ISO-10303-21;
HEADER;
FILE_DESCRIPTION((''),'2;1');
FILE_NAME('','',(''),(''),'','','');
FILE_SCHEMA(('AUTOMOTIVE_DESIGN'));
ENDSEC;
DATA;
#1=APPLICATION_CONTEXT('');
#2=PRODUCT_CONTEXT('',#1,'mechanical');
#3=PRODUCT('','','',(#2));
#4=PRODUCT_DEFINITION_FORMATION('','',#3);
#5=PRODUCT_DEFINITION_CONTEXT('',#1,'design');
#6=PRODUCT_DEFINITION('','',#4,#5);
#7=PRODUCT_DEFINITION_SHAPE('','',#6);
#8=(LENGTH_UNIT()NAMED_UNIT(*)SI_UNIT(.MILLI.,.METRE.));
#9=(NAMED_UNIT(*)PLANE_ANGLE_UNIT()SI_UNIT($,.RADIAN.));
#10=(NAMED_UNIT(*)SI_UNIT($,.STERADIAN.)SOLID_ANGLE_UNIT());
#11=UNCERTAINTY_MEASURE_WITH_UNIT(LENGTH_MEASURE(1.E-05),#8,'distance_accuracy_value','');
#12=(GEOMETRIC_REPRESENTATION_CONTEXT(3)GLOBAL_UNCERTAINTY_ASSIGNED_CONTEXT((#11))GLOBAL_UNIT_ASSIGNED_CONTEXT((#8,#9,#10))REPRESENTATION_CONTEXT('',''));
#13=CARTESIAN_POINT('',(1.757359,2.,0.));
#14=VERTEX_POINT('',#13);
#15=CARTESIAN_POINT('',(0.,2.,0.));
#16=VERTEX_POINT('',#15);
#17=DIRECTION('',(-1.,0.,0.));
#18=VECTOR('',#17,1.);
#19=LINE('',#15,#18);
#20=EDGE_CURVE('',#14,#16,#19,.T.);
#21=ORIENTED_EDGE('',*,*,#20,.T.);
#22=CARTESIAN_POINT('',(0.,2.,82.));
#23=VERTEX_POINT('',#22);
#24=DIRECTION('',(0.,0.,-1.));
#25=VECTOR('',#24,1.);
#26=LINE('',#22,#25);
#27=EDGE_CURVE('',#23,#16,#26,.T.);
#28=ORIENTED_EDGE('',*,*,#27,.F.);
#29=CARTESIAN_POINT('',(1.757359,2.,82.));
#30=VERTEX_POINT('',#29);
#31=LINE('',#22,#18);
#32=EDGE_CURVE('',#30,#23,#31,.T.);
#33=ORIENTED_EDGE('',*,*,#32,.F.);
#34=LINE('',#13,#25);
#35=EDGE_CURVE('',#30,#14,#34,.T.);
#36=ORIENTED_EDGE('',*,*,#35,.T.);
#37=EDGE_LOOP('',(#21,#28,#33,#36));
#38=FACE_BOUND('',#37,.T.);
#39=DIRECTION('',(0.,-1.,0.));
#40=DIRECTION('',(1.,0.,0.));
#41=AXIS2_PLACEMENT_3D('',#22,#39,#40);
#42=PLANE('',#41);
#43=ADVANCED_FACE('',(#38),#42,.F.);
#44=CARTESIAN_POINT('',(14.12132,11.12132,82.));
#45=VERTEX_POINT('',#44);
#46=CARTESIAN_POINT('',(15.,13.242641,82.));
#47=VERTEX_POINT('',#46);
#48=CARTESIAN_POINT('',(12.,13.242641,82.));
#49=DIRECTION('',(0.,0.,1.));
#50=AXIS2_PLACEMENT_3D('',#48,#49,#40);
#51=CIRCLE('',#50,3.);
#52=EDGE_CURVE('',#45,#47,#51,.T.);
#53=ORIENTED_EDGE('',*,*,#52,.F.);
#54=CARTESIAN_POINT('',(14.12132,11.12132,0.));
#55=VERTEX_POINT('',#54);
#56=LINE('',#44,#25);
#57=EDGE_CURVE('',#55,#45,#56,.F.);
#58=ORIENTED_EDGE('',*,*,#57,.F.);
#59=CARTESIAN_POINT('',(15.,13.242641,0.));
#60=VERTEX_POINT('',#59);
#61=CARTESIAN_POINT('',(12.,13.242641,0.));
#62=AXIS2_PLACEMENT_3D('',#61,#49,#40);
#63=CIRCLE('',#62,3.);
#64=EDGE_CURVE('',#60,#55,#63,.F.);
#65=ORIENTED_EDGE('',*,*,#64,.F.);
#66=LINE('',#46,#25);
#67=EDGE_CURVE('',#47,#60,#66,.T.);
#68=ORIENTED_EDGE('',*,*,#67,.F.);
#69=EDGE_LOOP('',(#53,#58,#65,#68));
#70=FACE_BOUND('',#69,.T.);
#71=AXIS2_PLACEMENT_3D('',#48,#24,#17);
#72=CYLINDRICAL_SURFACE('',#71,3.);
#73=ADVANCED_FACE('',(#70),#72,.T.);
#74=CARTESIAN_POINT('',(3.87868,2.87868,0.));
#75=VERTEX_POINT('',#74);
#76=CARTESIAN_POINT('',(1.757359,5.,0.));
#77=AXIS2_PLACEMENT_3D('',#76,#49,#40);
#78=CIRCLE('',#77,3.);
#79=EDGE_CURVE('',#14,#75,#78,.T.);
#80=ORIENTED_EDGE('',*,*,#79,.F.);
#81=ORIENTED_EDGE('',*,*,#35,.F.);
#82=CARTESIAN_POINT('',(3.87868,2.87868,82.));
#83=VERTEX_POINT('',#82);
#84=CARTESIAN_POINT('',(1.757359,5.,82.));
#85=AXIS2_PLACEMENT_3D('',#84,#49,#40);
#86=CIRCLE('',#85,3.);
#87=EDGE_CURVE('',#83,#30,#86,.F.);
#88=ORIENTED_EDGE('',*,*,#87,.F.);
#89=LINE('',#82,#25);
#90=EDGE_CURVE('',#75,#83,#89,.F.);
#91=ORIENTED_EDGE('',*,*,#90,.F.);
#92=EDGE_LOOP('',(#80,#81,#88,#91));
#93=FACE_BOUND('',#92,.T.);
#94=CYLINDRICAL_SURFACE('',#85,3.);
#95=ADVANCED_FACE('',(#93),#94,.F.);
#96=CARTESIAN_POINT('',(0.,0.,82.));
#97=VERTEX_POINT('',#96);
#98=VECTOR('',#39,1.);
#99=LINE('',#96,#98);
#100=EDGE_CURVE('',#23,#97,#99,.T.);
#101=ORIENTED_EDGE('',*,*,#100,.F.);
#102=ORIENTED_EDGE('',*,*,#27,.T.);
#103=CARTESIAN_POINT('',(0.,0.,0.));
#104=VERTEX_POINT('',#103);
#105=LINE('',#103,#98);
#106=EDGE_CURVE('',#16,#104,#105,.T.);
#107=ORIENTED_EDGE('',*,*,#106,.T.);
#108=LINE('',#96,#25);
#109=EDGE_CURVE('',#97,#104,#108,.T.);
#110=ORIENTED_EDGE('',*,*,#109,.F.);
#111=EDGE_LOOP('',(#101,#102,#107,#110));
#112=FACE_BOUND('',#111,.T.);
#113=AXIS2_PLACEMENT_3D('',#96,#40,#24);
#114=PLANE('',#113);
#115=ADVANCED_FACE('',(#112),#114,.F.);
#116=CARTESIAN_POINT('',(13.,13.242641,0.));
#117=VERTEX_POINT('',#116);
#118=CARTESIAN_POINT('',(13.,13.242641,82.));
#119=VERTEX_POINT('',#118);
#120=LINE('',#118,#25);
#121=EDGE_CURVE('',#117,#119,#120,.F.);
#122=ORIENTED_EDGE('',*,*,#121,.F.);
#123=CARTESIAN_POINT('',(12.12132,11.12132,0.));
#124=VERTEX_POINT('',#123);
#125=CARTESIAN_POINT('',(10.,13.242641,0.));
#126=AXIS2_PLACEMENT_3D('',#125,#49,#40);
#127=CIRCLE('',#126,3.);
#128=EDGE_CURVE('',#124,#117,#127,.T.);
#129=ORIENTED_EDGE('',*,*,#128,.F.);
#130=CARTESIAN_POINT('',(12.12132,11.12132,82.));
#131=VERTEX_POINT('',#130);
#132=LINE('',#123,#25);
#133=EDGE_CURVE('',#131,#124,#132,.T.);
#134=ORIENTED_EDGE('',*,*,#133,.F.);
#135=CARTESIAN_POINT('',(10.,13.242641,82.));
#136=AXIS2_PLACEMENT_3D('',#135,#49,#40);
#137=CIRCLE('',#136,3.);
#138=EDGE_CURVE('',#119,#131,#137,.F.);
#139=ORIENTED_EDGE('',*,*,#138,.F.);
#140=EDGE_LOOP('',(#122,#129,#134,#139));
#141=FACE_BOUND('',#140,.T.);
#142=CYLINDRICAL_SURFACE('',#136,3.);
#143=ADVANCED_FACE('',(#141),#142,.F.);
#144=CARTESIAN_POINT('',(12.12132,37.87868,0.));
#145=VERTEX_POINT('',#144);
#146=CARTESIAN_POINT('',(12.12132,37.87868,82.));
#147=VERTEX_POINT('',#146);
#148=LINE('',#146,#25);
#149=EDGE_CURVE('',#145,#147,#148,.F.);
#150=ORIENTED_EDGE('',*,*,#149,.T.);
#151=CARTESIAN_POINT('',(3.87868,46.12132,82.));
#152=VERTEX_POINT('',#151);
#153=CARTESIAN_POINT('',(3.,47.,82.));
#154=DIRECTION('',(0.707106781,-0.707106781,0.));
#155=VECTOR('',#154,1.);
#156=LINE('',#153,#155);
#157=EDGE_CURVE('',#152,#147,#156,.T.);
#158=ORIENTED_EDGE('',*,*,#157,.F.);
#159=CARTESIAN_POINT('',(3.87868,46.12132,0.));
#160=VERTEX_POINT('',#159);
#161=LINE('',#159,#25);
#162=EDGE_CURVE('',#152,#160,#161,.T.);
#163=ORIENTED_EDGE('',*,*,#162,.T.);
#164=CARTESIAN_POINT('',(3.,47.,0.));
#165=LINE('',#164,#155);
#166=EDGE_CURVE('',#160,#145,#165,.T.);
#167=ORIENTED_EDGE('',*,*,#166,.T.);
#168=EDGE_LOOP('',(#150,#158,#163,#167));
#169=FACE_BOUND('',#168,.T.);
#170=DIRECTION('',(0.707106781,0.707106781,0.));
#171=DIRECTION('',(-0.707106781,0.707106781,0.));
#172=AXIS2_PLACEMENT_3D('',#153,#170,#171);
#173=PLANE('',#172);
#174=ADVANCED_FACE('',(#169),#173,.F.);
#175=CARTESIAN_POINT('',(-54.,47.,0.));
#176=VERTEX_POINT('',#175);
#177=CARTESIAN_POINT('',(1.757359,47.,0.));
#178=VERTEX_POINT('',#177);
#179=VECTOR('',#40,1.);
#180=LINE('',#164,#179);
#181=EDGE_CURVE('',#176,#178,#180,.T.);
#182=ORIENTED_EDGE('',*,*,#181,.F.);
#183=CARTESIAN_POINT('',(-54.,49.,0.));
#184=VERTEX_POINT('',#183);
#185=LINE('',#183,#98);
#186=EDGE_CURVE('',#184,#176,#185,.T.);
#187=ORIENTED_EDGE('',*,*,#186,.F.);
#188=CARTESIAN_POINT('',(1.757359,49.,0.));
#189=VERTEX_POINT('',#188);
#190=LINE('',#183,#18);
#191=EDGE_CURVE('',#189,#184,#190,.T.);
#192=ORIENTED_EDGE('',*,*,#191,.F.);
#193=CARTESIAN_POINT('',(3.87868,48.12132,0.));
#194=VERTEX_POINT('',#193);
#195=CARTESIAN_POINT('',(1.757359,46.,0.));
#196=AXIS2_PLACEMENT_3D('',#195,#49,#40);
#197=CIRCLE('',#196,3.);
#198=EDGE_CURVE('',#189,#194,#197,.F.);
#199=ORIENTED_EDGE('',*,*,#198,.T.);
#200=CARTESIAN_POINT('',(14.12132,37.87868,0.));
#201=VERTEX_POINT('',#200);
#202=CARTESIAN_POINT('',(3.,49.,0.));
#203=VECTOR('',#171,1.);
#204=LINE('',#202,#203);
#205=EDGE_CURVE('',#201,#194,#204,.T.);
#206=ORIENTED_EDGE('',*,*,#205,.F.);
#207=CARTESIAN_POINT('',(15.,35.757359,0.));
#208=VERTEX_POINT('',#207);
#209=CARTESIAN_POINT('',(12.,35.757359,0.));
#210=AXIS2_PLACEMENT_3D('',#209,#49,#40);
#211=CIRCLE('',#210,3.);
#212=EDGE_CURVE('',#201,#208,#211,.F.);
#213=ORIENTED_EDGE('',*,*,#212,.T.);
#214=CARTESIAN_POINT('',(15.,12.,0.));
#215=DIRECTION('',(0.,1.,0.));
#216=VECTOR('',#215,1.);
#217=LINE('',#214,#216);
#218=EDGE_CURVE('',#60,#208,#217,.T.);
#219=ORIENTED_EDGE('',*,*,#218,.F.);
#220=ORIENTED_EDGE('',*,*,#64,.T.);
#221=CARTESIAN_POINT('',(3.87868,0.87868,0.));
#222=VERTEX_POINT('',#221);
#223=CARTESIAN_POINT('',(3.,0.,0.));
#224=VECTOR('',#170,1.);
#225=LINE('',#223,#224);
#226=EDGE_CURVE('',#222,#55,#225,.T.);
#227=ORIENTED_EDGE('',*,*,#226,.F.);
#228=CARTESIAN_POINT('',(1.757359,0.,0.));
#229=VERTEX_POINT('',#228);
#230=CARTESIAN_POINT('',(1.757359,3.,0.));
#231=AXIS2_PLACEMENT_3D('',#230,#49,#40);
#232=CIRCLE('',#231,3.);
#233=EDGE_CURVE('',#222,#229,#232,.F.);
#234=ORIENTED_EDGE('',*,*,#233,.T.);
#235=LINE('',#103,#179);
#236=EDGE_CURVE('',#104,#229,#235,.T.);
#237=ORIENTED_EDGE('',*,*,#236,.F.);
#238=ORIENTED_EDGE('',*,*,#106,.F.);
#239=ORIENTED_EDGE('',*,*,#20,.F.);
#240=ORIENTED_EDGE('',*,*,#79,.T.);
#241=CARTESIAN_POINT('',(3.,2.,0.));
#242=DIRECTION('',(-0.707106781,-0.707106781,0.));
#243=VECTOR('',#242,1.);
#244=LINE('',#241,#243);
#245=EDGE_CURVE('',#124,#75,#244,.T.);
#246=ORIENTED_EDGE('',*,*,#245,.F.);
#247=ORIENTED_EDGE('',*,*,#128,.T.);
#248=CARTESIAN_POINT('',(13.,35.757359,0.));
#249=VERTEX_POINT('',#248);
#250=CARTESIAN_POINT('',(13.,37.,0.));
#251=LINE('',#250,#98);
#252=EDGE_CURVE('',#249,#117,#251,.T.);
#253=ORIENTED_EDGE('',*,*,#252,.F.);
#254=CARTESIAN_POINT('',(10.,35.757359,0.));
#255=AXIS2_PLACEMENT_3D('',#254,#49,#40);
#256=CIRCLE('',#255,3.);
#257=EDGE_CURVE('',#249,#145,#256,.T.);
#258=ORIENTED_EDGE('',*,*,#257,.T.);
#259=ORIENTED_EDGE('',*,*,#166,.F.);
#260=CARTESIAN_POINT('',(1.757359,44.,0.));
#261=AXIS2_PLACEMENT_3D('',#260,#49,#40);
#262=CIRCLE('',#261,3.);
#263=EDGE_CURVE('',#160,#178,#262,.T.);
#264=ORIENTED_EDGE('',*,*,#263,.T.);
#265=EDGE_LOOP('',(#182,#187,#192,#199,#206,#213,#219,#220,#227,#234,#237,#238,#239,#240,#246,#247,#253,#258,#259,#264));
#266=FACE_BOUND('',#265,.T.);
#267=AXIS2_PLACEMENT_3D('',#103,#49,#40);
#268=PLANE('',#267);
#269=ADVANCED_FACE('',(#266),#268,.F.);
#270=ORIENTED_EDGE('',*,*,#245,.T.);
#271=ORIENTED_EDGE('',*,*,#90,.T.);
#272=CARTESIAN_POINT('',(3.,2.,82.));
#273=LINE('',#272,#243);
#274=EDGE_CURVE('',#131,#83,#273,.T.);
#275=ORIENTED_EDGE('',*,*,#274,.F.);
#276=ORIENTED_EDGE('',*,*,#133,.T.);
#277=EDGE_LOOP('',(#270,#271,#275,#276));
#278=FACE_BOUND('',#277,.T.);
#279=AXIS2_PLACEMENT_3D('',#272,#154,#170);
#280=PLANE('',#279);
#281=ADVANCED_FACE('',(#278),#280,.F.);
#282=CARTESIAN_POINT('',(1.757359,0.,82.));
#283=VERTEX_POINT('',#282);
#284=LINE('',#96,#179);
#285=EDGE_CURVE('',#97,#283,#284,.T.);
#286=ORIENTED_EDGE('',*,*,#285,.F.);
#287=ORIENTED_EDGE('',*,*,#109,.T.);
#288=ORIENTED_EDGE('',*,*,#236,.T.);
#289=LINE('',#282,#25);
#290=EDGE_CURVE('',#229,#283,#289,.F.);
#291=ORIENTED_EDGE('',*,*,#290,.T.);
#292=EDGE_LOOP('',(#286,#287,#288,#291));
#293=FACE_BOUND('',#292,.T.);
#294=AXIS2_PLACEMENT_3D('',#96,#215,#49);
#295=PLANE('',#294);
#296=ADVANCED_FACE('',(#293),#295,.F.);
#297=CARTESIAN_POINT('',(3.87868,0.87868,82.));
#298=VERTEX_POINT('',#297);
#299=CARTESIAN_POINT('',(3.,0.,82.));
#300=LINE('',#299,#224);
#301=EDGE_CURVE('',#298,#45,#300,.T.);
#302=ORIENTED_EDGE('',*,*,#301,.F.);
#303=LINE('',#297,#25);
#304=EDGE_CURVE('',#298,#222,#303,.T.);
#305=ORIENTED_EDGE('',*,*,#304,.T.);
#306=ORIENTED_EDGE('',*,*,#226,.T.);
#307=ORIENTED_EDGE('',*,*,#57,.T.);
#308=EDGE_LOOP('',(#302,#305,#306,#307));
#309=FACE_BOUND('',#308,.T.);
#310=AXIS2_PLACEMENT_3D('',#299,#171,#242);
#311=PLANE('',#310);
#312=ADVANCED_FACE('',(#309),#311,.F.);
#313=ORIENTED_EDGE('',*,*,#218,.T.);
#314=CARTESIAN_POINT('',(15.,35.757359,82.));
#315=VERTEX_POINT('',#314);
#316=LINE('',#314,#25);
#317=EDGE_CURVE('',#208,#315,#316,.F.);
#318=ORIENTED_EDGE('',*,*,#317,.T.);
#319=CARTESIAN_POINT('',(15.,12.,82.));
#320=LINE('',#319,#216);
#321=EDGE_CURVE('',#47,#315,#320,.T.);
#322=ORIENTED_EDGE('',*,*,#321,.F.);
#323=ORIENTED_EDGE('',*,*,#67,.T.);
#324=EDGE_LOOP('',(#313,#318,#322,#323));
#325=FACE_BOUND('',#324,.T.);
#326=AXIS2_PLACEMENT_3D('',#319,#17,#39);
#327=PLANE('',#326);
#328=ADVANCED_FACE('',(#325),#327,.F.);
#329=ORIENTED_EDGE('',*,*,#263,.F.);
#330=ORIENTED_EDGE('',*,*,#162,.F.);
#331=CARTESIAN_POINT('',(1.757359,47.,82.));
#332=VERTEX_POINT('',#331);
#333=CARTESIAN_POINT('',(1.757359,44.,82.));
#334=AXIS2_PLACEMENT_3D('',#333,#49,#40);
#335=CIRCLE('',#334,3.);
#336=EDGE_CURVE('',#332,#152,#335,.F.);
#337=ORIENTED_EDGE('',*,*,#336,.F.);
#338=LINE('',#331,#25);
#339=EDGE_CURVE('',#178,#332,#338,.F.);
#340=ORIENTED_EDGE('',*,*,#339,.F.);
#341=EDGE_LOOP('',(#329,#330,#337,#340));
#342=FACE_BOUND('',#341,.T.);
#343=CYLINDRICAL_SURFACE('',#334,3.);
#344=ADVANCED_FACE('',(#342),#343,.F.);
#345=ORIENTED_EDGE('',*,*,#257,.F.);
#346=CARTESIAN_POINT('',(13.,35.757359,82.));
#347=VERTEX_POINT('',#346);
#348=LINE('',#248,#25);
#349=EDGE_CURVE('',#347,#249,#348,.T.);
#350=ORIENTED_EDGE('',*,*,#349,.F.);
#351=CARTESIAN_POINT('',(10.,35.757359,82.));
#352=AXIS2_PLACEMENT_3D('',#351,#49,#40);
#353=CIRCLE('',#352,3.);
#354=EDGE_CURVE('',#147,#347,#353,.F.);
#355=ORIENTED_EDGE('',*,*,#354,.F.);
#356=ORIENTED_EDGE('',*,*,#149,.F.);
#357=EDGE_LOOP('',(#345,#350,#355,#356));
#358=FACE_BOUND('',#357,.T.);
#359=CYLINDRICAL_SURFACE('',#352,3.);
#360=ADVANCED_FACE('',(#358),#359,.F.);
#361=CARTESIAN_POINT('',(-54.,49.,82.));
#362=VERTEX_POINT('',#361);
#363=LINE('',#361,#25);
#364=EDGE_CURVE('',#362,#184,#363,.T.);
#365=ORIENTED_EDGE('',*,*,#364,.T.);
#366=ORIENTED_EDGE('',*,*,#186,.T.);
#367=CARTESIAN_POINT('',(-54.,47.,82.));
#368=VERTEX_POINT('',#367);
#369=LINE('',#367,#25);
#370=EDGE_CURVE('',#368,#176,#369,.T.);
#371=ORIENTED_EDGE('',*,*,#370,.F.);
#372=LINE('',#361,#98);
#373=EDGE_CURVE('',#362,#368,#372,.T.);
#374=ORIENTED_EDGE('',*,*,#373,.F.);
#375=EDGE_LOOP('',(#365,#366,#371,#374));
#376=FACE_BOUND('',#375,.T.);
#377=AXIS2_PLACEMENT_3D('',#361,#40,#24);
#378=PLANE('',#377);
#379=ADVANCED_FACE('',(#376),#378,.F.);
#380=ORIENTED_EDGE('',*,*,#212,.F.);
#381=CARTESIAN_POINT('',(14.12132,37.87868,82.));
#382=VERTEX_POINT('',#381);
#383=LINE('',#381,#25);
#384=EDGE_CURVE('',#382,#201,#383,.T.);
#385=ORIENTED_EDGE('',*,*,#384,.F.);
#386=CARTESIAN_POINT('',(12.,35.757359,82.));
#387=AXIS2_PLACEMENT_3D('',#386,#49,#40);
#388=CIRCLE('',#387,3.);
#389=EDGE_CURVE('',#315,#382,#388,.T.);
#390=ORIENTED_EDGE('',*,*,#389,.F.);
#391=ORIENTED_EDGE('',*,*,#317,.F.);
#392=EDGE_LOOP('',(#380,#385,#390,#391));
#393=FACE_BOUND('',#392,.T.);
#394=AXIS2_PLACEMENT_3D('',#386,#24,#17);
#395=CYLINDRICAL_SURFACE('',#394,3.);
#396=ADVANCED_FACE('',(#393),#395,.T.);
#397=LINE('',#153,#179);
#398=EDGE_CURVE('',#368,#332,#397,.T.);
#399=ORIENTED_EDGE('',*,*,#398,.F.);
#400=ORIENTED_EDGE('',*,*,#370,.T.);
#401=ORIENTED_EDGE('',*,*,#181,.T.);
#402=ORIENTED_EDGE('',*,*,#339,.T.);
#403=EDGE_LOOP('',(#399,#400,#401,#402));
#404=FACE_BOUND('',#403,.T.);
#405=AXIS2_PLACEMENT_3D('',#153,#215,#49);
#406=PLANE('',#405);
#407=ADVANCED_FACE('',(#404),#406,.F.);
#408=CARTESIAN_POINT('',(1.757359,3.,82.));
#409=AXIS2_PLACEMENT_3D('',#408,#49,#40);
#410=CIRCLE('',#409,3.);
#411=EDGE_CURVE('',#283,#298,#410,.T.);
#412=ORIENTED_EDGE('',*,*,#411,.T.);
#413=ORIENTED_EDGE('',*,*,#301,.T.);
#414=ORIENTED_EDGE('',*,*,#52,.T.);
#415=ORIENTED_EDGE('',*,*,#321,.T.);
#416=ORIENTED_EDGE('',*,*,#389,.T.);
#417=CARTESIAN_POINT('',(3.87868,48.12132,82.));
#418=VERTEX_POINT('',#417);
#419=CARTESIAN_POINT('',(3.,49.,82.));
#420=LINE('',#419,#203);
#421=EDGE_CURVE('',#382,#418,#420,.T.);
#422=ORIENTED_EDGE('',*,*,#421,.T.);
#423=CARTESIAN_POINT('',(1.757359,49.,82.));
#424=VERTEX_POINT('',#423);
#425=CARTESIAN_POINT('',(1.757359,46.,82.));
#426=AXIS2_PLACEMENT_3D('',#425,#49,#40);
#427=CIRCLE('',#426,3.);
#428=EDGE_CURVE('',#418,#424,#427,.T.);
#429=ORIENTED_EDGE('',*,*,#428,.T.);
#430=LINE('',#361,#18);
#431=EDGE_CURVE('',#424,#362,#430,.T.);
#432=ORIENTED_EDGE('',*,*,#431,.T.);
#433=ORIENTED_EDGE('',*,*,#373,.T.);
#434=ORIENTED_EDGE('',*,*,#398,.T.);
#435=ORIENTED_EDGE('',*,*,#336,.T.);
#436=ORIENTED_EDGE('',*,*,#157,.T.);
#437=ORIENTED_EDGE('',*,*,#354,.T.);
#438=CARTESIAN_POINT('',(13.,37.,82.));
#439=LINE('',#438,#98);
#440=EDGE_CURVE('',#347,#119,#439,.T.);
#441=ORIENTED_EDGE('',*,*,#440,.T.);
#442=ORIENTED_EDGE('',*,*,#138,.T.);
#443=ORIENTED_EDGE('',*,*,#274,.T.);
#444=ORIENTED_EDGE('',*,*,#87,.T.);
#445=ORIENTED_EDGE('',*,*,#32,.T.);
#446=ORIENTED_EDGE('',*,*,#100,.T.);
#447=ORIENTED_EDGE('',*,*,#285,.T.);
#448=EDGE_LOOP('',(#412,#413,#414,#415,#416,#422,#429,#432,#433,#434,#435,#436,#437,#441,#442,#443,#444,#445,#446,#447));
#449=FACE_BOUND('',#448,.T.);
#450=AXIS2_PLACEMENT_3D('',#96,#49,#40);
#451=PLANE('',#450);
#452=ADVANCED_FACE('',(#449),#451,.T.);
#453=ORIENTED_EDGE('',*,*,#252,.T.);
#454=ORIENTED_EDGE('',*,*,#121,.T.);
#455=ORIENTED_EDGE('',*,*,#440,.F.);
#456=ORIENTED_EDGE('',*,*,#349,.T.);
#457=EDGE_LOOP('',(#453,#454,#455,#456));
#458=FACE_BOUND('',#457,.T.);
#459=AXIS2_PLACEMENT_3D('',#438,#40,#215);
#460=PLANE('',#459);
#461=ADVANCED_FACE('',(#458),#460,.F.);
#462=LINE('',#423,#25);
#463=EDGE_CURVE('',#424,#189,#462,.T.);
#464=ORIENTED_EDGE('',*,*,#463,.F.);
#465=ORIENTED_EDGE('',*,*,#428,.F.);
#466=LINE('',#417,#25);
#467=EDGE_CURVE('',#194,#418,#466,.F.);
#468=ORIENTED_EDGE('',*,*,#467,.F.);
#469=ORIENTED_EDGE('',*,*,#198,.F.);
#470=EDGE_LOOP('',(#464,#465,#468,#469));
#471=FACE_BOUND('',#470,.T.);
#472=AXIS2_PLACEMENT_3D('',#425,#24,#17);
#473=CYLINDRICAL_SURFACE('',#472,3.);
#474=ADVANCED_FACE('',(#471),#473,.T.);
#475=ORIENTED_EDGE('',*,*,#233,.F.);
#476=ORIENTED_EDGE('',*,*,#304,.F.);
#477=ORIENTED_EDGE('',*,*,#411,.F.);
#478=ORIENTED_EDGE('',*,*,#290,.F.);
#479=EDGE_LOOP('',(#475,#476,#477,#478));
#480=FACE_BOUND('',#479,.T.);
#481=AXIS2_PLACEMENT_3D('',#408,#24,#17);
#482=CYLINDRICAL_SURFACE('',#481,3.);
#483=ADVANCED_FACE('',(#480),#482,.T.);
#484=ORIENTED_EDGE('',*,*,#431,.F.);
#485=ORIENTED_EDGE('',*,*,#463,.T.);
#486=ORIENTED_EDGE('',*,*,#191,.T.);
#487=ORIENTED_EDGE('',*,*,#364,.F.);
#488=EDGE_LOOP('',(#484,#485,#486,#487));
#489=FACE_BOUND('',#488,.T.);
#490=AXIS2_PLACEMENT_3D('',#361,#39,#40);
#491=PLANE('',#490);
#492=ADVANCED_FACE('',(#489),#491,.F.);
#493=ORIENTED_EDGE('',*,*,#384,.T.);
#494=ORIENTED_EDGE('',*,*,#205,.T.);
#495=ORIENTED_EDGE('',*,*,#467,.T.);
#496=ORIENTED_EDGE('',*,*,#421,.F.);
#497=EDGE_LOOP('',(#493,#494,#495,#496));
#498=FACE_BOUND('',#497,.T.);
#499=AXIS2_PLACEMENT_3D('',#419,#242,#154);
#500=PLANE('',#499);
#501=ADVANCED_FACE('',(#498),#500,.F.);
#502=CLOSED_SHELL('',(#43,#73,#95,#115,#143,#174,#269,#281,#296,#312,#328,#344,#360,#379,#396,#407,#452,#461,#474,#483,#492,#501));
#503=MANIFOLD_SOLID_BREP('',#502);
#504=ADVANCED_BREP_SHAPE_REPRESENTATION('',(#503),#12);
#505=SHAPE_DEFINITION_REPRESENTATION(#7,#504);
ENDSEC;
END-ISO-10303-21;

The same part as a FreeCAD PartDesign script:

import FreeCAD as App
import Part
import Sketcher
Q = App.Units.Quantity


def edges_at(feature, points):
    """Names of the edges that pass closest to the given points."""
    edges = feature.Shape.Edges
    near = lambda p: min(range(len(edges)), key=lambda i: edges[i].distToShape(Part.Vertex(*p))[0])
    return sorted({f"Edge{near(p) + 1}" for p in points})


def add_polygon(sketch, points):
    """Adds a closed chain of lines whose ends are joined by coincident constraints."""
    first, n = sketch.GeometryCount, len(points)
    for a, b in zip(points, points[1:] + points[:1]):
        sketch.addGeometry(Part.LineSegment(App.Vector(*a, 0), App.Vector(*b, 0)), False)
    for i in range(n):
        sketch.addConstraint(Sketcher.Constraint("Coincident", first + i, 2, first + (i + 1) % n, 1))

doc = App.newDocument("Part")
params = doc.addObject("Spreadsheet::Sheet", "Params")
for row, (alias, value) in enumerate([
    ("sketch1_width", "3 mm"),
    ("sketch1_width2", "57 mm"),
    ("sketch1_height", "2 mm"),
    ("sketch1_height2", "25 mm"),
    ("pad1_length", "82 mm"),
    ("fillet_radius", "3 mm"),
], start=1):
    params.set(f"A{row}", alias)
    params.set(f"B{row}", "=" + value)
    params.setAlias(f"B{row}", alias)

body = doc.addObject("PartDesign::Body", "Body")

# Sketch on XY plane
sketch1 = body.newObject("Sketcher::SketchObject", "Sketch")
sketch1.AttachmentSupport = (doc.getObject("XY_Plane"), [""])
sketch1.MapMode = "FlatFace"
add_polygon(sketch1, [(0, 2), (0, 0), (3, 0), (15, 12), (15, 37), (3, 49), (-54, 49), (-54, 47), (3, 47), (13, 37), (13, 12), (3, 2)])  # lines 0-11
sketch1.addConstraint([
    Sketcher.Constraint("Vertical", 0),
    Sketcher.Constraint("Horizontal", 1),
    Sketcher.Constraint("Vertical", 3),
    Sketcher.Constraint("Horizontal", 5),
    Sketcher.Constraint("Vertical", 6),
    Sketcher.Constraint("Horizontal", 7),
    Sketcher.Constraint("Vertical", 9),
    Sketcher.Constraint("Horizontal", 11),
    Sketcher.Constraint("Coincident", 0, 2, -1, 1),
    Sketcher.Constraint("Perpendicular", 2, 4),
    Sketcher.Constraint("Parallel", 4, 8),
    Sketcher.Constraint("Perpendicular", 8, 10),
    Sketcher.Constraint("Horizontal", 3, 2, 8, 2),
    Sketcher.Constraint("Horizontal", 2, 2, 9, 2),
    Sketcher.Constraint("Vertical", 1, 2, 4, 2),
    Sketcher.Constraint("Vertical", 4, 2, 7, 2),
    Sketcher.Constraint("Vertical", 7, 2, 10, 2),
    Sketcher.Constraint("Equal", 0, 6),
    Sketcher.Constraint("DistanceX", 1, 1, 1, 2, Q("3 mm")),
    Sketcher.Constraint("DistanceX", 5, 2, 5, 1, Q("57 mm")),
    Sketcher.Constraint("DistanceY", 0, 2, 0, 1, Q("2 mm")),
    Sketcher.Constraint("DistanceY", 3, 1, 3, 2, Q("25 mm")),
    Sketcher.Constraint("DistanceX", -1, 1, 2, 2, Q("15 mm")),
])
sketch1.setExpression("Constraints[30]", "Params.sketch1_width")
sketch1.setExpression("Constraints[31]", "Params.sketch1_width2")
sketch1.setExpression("Constraints[32]", "Params.sketch1_height")
sketch1.setExpression("Constraints[33]", "Params.sketch1_height2")
pad1 = body.newObject("PartDesign::Pad", "Pad")
pad1.Profile = sketch1
pad1.setExpression("Length", "Params.pad1_length")
doc.recompute()

fillet = body.newObject("PartDesign::Fillet", "Fillet")
fillet.Base = (pad1, edges_at(pad1, [
    (3, 2, 41),
    (13, 12, 41),
    (13, 37, 41),
    (3, 47, 41),
    (3, 49, 41),
    (15, 37, 41),
    (15, 12, 41),
    (3, 0, 41),
]))
fillet.setExpression("Radius", "Params.fillet_radius")

doc.recompute()
